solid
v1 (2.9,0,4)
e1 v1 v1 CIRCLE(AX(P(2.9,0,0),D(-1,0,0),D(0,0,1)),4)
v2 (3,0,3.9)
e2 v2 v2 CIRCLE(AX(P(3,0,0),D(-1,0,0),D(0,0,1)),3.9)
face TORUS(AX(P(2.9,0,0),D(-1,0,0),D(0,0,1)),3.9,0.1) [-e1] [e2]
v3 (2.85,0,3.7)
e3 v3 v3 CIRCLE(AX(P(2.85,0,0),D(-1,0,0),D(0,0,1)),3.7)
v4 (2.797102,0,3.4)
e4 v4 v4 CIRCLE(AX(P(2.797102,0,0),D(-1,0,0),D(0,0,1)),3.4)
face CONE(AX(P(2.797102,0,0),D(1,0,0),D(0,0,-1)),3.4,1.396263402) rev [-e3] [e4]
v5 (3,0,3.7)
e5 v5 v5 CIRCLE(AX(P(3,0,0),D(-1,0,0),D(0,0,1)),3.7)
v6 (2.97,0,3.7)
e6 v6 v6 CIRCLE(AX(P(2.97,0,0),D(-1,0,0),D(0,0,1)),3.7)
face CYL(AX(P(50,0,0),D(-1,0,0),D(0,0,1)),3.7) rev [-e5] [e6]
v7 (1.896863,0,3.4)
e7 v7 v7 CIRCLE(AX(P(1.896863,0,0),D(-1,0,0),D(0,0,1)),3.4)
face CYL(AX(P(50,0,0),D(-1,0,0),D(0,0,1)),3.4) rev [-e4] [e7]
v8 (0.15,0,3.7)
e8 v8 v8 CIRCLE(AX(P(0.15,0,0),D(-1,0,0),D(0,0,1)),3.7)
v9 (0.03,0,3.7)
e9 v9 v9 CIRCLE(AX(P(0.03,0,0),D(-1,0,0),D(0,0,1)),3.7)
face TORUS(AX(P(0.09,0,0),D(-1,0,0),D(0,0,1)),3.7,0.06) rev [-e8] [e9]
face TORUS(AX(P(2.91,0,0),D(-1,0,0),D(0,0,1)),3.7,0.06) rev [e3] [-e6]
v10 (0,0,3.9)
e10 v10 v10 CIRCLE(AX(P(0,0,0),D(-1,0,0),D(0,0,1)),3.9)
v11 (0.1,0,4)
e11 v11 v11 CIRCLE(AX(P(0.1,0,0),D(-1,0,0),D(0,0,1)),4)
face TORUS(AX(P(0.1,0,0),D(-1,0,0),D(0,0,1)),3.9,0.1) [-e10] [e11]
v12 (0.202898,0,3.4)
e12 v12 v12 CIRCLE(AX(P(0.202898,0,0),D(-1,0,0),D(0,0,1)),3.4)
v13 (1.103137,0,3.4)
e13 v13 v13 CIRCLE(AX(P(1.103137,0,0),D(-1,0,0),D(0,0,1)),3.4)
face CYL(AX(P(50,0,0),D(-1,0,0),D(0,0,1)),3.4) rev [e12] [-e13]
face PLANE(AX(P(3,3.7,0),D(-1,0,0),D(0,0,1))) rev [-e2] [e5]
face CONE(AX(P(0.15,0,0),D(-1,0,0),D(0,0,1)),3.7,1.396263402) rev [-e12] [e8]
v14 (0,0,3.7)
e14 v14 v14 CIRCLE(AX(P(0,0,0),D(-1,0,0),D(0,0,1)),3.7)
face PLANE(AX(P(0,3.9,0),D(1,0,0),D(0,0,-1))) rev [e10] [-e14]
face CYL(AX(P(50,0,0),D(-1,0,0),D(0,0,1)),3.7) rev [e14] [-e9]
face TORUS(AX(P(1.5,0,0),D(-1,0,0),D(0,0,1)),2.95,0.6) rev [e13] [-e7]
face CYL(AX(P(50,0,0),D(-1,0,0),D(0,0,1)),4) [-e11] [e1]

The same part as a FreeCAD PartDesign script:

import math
import FreeCAD as App
import Part
import Sketcher
from FreeCAD import Vector
Q = App.Units.Quantity

doc = App.newDocument("Part")
body = doc.addObject("PartDesign::Body", "Body")

# Sketch on XY plane
sketch1 = body.newObject("Sketcher::SketchObject", "Sketch")
sketch1.AttachmentSupport = (doc.getObject("XY_Plane"), [""])
sketch1.MapMode = "FlatFace"
sketch1.addGeometry([
    Part.LineSegment(Vector(0, 3.9, 0), Vector(0, 3.7, 0)),  # 0
    Part.LineSegment(Vector(0, 3.7, 0), Vector(0.03, 3.7, 0)),  # 1
    Part.ArcOfCircle(Part.Circle(Vector(0.09, 3.7, 0), Vector(0, 0, 1), 0.06), math.radians(0), math.radians(180)),  # 2
    Part.LineSegment(Vector(0.15, 3.7, 0), Vector(0.203, 3.4, 0)),  # 3
    Part.LineSegment(Vector(0.203, 3.4, 0), Vector(1.103, 3.4, 0)),  # 4
    Part.ArcOfCircle(Part.Circle(Vector(1.5, 2.95, 0), Vector(0, 0, 1), 0.6), math.radians(49), math.radians(131)),  # 5
    Part.LineSegment(Vector(1.897, 3.4, 0), Vector(2.797, 3.4, 0)),  # 6
    Part.LineSegment(Vector(2.797, 3.4, 0), Vector(2.85, 3.7, 0)),  # 7
    Part.ArcOfCircle(Part.Circle(Vector(2.91, 3.7, 0), Vector(0, 0, 1), 0.06), math.radians(0), math.radians(180)),  # 8
    Part.LineSegment(Vector(2.97, 3.7, 0), Vector(3, 3.7, 0)),  # 9
    Part.LineSegment(Vector(3, 3.7, 0), Vector(3, 3.9, 0)),  # 10
    Part.ArcOfCircle(Part.Circle(Vector(2.9, 3.9, 0), Vector(0, 0, 1), 0.1), math.radians(0), math.radians(90)),  # 11
    Part.LineSegment(Vector(2.9, 4, 0), Vector(0.1, 4, 0)),  # 12
    Part.ArcOfCircle(Part.Circle(Vector(0.1, 3.9, 0), Vector(0, 0, 1), 0.1), math.radians(90), math.radians(180)),  # 13
], False)
sketch1.addConstraint([
    Sketcher.Constraint("Coincident", 0, 2, 1, 1),
    Sketcher.Constraint("Coincident", 1, 2, 2, 2),
    Sketcher.Constraint("Coincident", 2, 1, 3, 1),
    Sketcher.Constraint("Coincident", 3, 2, 4, 1),
    Sketcher.Constraint("Coincident", 4, 2, 5, 2),
    Sketcher.Constraint("Coincident", 5, 1, 6, 1),
    Sketcher.Constraint("Coincident", 6, 2, 7, 1),
    Sketcher.Constraint("Coincident", 7, 2, 8, 2),
    Sketcher.Constraint("Coincident", 8, 1, 9, 1),
    Sketcher.Constraint("Coincident", 9, 2, 10, 1),
    Sketcher.Constraint("Tangent", 10, 2, 11, 1),
    Sketcher.Constraint("Tangent", 11, 2, 12, 1),
    Sketcher.Constraint("Tangent", 12, 2, 13, 1),
    Sketcher.Constraint("Tangent", 13, 2, 0, 1),
    Sketcher.Constraint("Vertical", 0),
    Sketcher.Constraint("Horizontal", 1),
    Sketcher.Constraint("Horizontal", 4),
    Sketcher.Constraint("Horizontal", 6),
    Sketcher.Constraint("Horizontal", 9),
    Sketcher.Constraint("Vertical", 10),
    Sketcher.Constraint("Horizontal", 12),
    Sketcher.Constraint("Equal", 2, 8),
    Sketcher.Constraint("Equal", 11, 13),
    Sketcher.Constraint("PointOnObject", 0, 2, -2),
    Sketcher.Constraint("Horizontal", 2, 3, 8, 3),
    Sketcher.Constraint("Horizontal", 8, 3, 0, 2),
    Sketcher.Constraint("Horizontal", 1, 2, 2, 1),
    Sketcher.Constraint("Horizontal", 4, 2, 5, 1),
    Sketcher.Constraint("Horizontal", 2, 1, 7, 2),
    Sketcher.Constraint("Horizontal", 7, 2, 8, 1),
    Sketcher.Constraint("Equal", 4, 6),
    Sketcher.Constraint("Equal", 1, 9),
    Sketcher.Constraint("Equal", 3, 7),
    Sketcher.Constraint("Radius", 5, Q("0.6 mm")),
    Sketcher.Constraint("Radius", 11, Q("0.1 mm")),
    Sketcher.Constraint("Angle", 3, Q("-80 deg")),
    Sketcher.Constraint("Radius", 2, Q("0.06 mm")),
    Sketcher.Constraint("DistanceX", 12, 2, 12, 1, Q("2.8 mm")),
    Sketcher.Constraint("DistanceY", 0, 2, 0, 1, Q("0.2 mm")),
    Sketcher.Constraint("DistanceY", -1, 1, 11, 2, Q("4 mm")),
    Sketcher.Constraint("DistanceX", 1, 1, 1, 2, Q("0.03 mm")),
    Sketcher.Constraint("DistanceY", -1, 1, 3, 2, Q("3.4 mm")),
    Sketcher.Constraint("DistanceY", -1, 1, 5, 3, Q("2.95 mm")),
])
revolution = body.newObject("PartDesign::Revolution", "Revolution")
revolution.Profile = sketch1
revolution.ReferenceAxis = (sketch1, ["H_Axis"])
revolution.Angle = 360

doc.recompute()
